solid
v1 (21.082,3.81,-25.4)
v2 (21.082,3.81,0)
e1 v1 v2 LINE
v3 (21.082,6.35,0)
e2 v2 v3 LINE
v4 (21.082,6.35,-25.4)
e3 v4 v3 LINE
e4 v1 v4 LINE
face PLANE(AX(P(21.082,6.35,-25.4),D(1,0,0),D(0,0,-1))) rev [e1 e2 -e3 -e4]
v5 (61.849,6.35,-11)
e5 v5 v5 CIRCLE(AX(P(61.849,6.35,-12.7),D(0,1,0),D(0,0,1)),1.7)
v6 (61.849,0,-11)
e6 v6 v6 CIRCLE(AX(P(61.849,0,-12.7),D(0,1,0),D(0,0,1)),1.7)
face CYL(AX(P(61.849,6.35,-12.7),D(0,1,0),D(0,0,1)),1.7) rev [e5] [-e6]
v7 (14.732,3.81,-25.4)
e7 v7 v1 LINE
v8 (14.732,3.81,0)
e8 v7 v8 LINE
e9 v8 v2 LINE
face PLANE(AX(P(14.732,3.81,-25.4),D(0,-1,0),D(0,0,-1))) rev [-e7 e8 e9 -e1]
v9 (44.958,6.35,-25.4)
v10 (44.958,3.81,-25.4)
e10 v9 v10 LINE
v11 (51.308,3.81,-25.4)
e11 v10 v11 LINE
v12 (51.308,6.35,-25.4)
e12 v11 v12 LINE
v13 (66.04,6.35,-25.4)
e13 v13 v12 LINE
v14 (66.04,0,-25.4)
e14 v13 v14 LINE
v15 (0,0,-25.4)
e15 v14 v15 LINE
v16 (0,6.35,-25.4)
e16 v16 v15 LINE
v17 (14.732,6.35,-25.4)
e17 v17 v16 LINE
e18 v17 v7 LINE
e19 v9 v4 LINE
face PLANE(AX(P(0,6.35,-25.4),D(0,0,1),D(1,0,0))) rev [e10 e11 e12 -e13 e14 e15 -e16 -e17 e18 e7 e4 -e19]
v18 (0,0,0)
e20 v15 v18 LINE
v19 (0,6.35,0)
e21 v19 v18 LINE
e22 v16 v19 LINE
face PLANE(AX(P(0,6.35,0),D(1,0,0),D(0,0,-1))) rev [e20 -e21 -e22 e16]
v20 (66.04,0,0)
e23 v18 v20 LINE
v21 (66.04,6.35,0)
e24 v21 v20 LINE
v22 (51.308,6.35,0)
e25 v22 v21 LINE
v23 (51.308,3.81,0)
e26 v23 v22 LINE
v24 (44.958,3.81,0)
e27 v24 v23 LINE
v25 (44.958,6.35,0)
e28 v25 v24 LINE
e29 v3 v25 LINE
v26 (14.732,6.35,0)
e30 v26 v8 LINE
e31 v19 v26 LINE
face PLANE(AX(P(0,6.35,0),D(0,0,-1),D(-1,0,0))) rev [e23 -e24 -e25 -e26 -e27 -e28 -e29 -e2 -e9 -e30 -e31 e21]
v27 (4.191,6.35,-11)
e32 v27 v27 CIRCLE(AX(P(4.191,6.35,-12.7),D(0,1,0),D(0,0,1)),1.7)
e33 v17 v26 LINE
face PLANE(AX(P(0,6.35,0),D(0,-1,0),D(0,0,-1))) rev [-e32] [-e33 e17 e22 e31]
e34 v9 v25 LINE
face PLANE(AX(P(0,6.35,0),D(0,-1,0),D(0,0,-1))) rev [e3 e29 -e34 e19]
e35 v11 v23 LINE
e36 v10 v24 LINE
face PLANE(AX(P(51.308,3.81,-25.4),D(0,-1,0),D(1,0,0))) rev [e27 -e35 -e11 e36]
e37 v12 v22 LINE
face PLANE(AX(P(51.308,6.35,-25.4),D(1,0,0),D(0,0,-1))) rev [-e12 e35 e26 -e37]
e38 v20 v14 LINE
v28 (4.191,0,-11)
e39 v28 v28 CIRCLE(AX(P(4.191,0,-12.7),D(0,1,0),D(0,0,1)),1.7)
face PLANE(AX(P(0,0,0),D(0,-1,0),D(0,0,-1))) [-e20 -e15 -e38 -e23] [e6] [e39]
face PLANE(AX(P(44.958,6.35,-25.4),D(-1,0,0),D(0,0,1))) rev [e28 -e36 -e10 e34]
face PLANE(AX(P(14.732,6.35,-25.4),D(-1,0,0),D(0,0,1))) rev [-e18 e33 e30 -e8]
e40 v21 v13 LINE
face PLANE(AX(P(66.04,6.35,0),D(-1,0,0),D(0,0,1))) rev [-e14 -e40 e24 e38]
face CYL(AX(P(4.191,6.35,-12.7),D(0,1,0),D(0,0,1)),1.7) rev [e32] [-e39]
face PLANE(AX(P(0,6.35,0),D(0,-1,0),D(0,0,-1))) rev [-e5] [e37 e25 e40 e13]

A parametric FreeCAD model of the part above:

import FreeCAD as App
import Part
import Sketcher

V = App.Vector
Q = App.Units.Quantity


def add_polygon(sketch, points):
    """Adds a closed chain of lines whose ends are joined by coincident constraints."""
    first, n = sketch.GeometryCount, len(points)
    for a, b in zip(points, points[1:] + points[:1]):
        sketch.addGeometry(Part.LineSegment(App.Vector(*a, 0), App.Vector(*b, 0)), False)
    for i in range(n):
        sketch.addConstraint(Sketcher.Constraint("Coincident", first + i, 2, first + (i + 1) % n, 1))

doc = App.newDocument("Part")
body = doc.addObject("PartDesign::Body", "Body")

# Sketch on XZ plane
sketch1 = doc.addObject("Sketcher::SketchObject", "Sketch")
body.addObject(sketch1)
sketch1.AttachmentSupport = (doc.XZ_Plane, [""])
sketch1.MapMode = "FlatFace"
add_polygon(sketch1, [(0, -25), (0, 0), (66, 0), (66, -25)])  # lines 0-3
sketch1.addConstraint(Sketcher.Constraint("Vertical", 0))
sketch1.addConstraint(Sketcher.Constraint("Horizontal", 1))
sketch1.addConstraint(Sketcher.Constraint("Vertical", 2))
sketch1.addConstraint(Sketcher.Constraint("Horizontal", 3))
sketch1.addConstraint(Sketcher.Constraint("Coincident", 0, 2, -1, 1))
sketch1.addConstraint(Sketcher.Constraint("DistanceY", 0, 1, 0, 2, Q("1 in")))
sketch1.addConstraint(Sketcher.Constraint("DistanceX", 1, 1, 1, 2, Q("2.6 in")))
pad1 = doc.addObject("PartDesign::Pad", "Pad")
body.addObject(pad1)
pad1.Profile = sketch1
pad1.Length = Q("0.25 in")
pad1.Reversed = True

# Sketch on XZ plane
sketch2 = doc.addObject("Sketcher::SketchObject", "Sketch001")
body.addObject(sketch2)
sketch2.AttachmentSupport = (doc.XZ_Plane, [""])
sketch2.MapMode = "FlatFace"
sketch2.AttachmentOffset = App.Placement(V(0, 0, -0.25 * 25.4), App.Rotation())
sketch2.addGeometry(Part.Circle(V(4.2, -12.7, 0), V(0, 0, 1), 1.7), False)
sketch2.addGeometry(Part.Circle(V(61.8, -12.7, 0), V(0, 0, 1), 1.7), False)
sketch2.addConstraint(Sketcher.Constraint("Equal", 0, 1))
sketch2.addConstraint(Sketcher.Constraint("Horizontal", 0, 3, 1, 3))
sketch2.addConstraint(Sketcher.Constraint("DistanceY", 0, 3, -1, 1, Q("0.5 in")))
sketch2.addConstraint(Sketcher.Constraint("Diameter", 0, Q("3.4 mm")))
sketch2.addConstraint(Sketcher.Constraint("DistanceX", 0, 3, 1, 3, Q("2.27 in")))
sketch2.addConstraint(Sketcher.Constraint("DistanceX", -1, 1, 0, 3, Q("0.165 in")))
doc.recompute()
hole = doc.addObject("PartDesign::Hole", "Hole")
body.addObject(hole)
hole.Profile = sketch2
hole.ThreadType = "None"
hole.Diameter = 3.4
hole.DepthType = "ThroughAll"
hole.Reversed = True

# Sketch on XY plane
sketch3 = doc.addObject("Sketcher::SketchObject", "Sketch002")
body.addObject(sketch3)
sketch3.AttachmentSupport = (doc.XY_Plane, [""])
sketch3.MapMode = "FlatFace"
add_polygon(sketch3, [(45, 6.3), (45, 3.8), (51.3, 3.8), (51.3, 6.3)])  # lines 0-3
add_polygon(sketch3, [(14.7, 6.3), (14.7, 3.8), (21.1, 3.8), (21.1, 6.3)])  # lines 4-7
sketch3.addConstraint(Sketcher.Constraint("Vertical", 0))
sketch3.addConstraint(Sketcher.Constraint("Horizontal", 1))
sketch3.addConstraint(Sketcher.Constraint("Vertical", 2))
sketch3.addConstraint(Sketcher.Constraint("Horizontal", 3))
sketch3.addConstraint(Sketcher.Constraint("Vertical", 4))
sketch3.addConstraint(Sketcher.Constraint("Horizontal", 5))
sketch3.addConstraint(Sketcher.Constraint("Vertical", 6))
sketch3.addConstraint(Sketcher.Constraint("Horizontal", 7))
sketch3.addConstraint(Sketcher.Constraint("Horizontal", 1, 2, 4, 2))
sketch3.addConstraint(Sketcher.Constraint("Horizontal", 3, 2, 6, 2))
sketch3.addConstraint(Sketcher.Constraint("Equal", 3, 5))
sketch3.addConstraint(Sketcher.Constraint("DistanceY", 0, 2, 0, 1, Q("0.1 in")))
sketch3.addConstraint(Sketcher.Constraint("DistanceX", 1, 1, 1, 2, Q("0.25 in")))
sketch3.addConstraint(Sketcher.Constraint("DistanceX", -1, 1, 0, 2, Q("1.77 in")))
sketch3.addConstraint(Sketcher.Constraint("DistanceY", -1, 1, 0, 2, Q("0.15 in")))
sketch3.addConstraint(Sketcher.Constraint("DistanceX", -1, 1, 4, 2, Q("0.58 in")))
pocket1 = doc.addObject("PartDesign::Pocket", "Pocket")
body.addObject(pocket1)
pocket1.Profile = sketch3
pocket1.Type = "ThroughAll"

doc.recompute()
